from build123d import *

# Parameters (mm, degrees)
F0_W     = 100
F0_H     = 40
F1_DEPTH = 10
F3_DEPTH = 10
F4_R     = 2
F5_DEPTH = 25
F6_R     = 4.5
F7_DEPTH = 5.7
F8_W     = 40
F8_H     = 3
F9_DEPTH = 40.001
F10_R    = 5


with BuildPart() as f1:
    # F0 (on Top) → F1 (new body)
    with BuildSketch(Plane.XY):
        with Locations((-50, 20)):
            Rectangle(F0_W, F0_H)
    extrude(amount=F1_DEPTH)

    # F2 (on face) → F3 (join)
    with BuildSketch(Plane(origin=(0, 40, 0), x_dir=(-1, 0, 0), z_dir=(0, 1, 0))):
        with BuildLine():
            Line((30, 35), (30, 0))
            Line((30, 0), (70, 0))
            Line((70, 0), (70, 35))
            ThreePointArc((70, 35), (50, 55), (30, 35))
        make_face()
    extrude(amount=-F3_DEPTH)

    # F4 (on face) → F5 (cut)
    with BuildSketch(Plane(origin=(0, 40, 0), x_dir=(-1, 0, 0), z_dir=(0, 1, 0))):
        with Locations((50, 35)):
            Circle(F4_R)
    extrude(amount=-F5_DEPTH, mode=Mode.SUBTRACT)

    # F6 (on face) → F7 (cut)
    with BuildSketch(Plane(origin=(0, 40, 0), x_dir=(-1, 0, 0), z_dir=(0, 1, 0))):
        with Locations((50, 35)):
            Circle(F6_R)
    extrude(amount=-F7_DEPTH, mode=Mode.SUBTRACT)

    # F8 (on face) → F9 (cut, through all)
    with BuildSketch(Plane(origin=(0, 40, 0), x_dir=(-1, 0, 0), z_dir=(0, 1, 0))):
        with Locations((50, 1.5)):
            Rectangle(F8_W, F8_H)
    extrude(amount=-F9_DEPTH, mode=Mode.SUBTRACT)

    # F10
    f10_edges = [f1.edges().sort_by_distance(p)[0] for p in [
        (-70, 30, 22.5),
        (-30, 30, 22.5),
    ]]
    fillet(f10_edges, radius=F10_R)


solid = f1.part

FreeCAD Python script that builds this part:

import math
import FreeCAD as App
import Part
import Sketcher
Q = App.Units.Quantity


def edges_at(feature, points):
    """Names of the edges that pass closest to the given points."""
    edges = feature.Shape.Edges
    near = lambda p: min(range(len(edges)), key=lambda i: edges[i].distToShape(Part.Vertex(*p))[0])
    return sorted({f"Edge{near(p) + 1}" for p in points})


def add_polygon(sketch, points):
    """Adds a closed chain of lines whose ends are joined by coincident constraints."""
    first, n = sketch.GeometryCount, len(points)
    for a, b in zip(points, points[1:] + points[:1]):
        sketch.addGeometry(Part.LineSegment(App.Vector(*a, 0), App.Vector(*b, 0)), False)
    for i in range(n):
        sketch.addConstraint(Sketcher.Constraint("Coincident", first + i, 2, first + (i + 1) % n, 1))

doc = App.newDocument("Part")
params = doc.addObject("Spreadsheet::Sheet", "Params")
for row, (alias, value) in enumerate([
    ("sketch1_width", "100 mm"),
    ("sketch1_height", "40 mm"),
    ("pad1_length", "10 mm"),
    ("sketch2_radius", "20 mm"),
    ("sketch2_height", "35 mm"),
    ("pad2_length", "10 mm"),
    ("sketch3_diameter", "4 mm"),
    ("pocket1_length", "25 mm"),
    ("sketch4_diameter", "9 mm"),
    ("pocket2_length", "5.7 mm"),
    ("sketch5_width", "40 mm"),
    ("sketch5_height", "3 mm"),
    ("fillet_radius", "5 mm"),
], start=1):
    params.set(f"A{row}", alias)
    params.set(f"B{row}", "=" + value)
    params.setAlias(f"B{row}", alias)

body = doc.addObject("PartDesign::Body", "Body")

# Sketch on XY plane
sketch1 = body.newObject("Sketcher::SketchObject", "Sketch")
sketch1.AttachmentSupport = (doc.getObject("XY_Plane"), [""])
sketch1.MapMode = "FlatFace"
add_polygon(sketch1, [(-100, 40), (-100, 0), (0, 0), (0, 40)])  # lines 0-3
sketch1.addConstraint([
    Sketcher.Constraint("Vertical", 0),
    Sketcher.Constraint("Horizontal", 1),
    Sketcher.Constraint("Vertical", 2),
    Sketcher.Constraint("Horizontal", 3),
    Sketcher.Constraint("Coincident", 1, 2, -1, 1),
    Sketcher.Constraint("DistanceX", 1, 1, 1, 2, Q("100 mm")),
    Sketcher.Constraint("DistanceY", 0, 2, 0, 1, Q("40 mm")),
])
sketch1.setExpression("Constraints[9]", "Params.sketch1_width")
sketch1.setExpression("Constraints[10]", "Params.sketch1_height")
pad1 = body.newObject("PartDesign::Pad", "Pad")
pad1.Profile = sketch1
pad1.setExpression("Length", "Params.pad1_length")

# Sketch on XZ plane
sketch2 = body.newObject("Sketcher::SketchObject", "Sketch001")
sketch2.AttachmentSupport = (doc.getObject("XZ_Plane"), [""])
sketch2.MapMode = "FlatFace"
sketch2.AttachmentOffset = App.Placement(App.Vector(0, 0, -40), App.Rotation())
sketch2.addGeometry([
    Part.LineSegment(App.Vector(-30, 35, 0), App.Vector(-30, 0, 0)),
    Part.LineSegment(App.Vector(-30, 0, 0), App.Vector(-70, 0, 0)),
    Part.LineSegment(App.Vector(-70, 0, 0), App.Vector(-70, 35, 0)),
    Part.ArcOfCircle(Part.Circle(App.Vector(-50, 35, 0), App.Vector(0, 0, 1), 20), math.radians(0), math.radians(180)),
], False)
sketch2.addConstraint([
    Sketcher.Constraint("Coincident", 0, 2, 1, 1),
    Sketcher.Constraint("Coincident", 1, 2, 2, 1),
    Sketcher.Constraint("Tangent", 2, 2, 3, 2),
    Sketcher.Constraint("Tangent", 3, 1, 0, 1),
    Sketcher.Constraint("Vertical", 0),
    Sketcher.Constraint("Horizontal", 1),
    Sketcher.Constraint("Vertical", 2),
    Sketcher.Constraint("PointOnObject", 0, 2, -1),
    Sketcher.Constraint("Radius", 3, Q("20 mm")),
    Sketcher.Constraint("DistanceY", 0, 2, 0, 1, Q("35 mm")),
    Sketcher.Constraint("DistanceX", 3, 3, -1, 1, Q("50 mm")),
])
sketch2.setExpression("Constraints[8]", "Params.sketch2_radius")
sketch2.setExpression("Constraints[9]", "Params.sketch2_height")
pad2 = body.newObject("PartDesign::Pad", "Pad001")
pad2.Profile = sketch2
pad2.setExpression("Length", "Params.pad2_length")

# Sketch on XZ plane
sketch3 = body.newObject("Sketcher::SketchObject", "Sketch002")
sketch3.AttachmentSupport = (doc.getObject("XZ_Plane"), [""])
sketch3.MapMode = "FlatFace"
sketch3.AttachmentOffset = App.Placement(App.Vector(0, 0, -40), App.Rotation())
sketch3.addGeometry(Part.Circle(App.Vector(-50, 35, 0), App.Vector(0, 0, 1), 2), False)
sketch3.addConstraint([
    Sketcher.Constraint("Diameter", 0, Q("4 mm")),
    Sketcher.Constraint("DistanceX", 0, 3, -1, 1, Q("50 mm")),
    Sketcher.Constraint("DistanceY", -1, 1, 0, 3, Q("35 mm")),
])
sketch3.setExpression("Constraints[0]", "Params.sketch3_diameter")
pocket1 = body.newObject("PartDesign::Pocket", "Pocket")
pocket1.Profile = sketch3
pocket1.setExpression("Length", "Params.pocket1_length")
pocket1.Reversed = True

# Sketch on XZ plane
sketch4 = body.newObject("Sketcher::SketchObject", "Sketch003")
sketch4.AttachmentSupport = (doc.getObject("XZ_Plane"), [""])
sketch4.MapMode = "FlatFace"
sketch4.AttachmentOffset = App.Placement(App.Vector(0, 0, -40), App.Rotation())
sketch4.addGeometry(Part.Circle(App.Vector(-50, 35, 0), App.Vector(0, 0, 1), 4.5), False)
sketch4.addConstraint([
    Sketcher.Constraint("Diameter", 0, Q("9 mm")),
    Sketcher.Constraint("DistanceX", 0, 3, -1, 1, Q("50 mm")),
    Sketcher.Constraint("DistanceY", -1, 1, 0, 3, Q("35 mm")),
])
sketch4.setExpression("Constraints[0]", "Params.sketch4_diameter")
pocket2 = body.newObject("PartDesign::Pocket", "Pocket001")
pocket2.Profile = sketch4
pocket2.setExpression("Length", "Params.pocket2_length")
pocket2.Reversed = True

# Sketch on XZ plane
sketch5 = body.newObject("Sketcher::SketchObject", "Sketch004")
sketch5.AttachmentSupport = (doc.getObject("XZ_Plane"), [""])
sketch5.MapMode = "FlatFace"
sketch5.AttachmentOffset = App.Placement(App.Vector(0, 0, -40), App.Rotation())
add_polygon(sketch5, [(-30, 3), (-30, 0), (-70, 0), (-70, 3)])  # lines 0-3
sketch5.addConstraint([
    Sketcher.Constraint("Vertical", 0),
    Sketcher.Constraint("Horizontal", 1),
    Sketcher.Constraint("Vertical", 2),
    Sketcher.Constraint("Horizontal", 3),
    Sketcher.Constraint("PointOnObject", 0, 2, -1),
    Sketcher.Constraint("DistanceX", 1, 2, 1, 1, Q("40 mm")),
    Sketcher.Constraint("DistanceY", 0, 2, 0, 1, Q("3 mm")),
    Sketcher.Constraint("DistanceX", 0, 2, -1, 1, Q("30 mm")),
])
sketch5.setExpression("Constraints[9]", "Params.sketch5_width")
sketch5.setExpression("Constraints[10]", "Params.sketch5_height")
pocket3 = body.newObject("PartDesign::Pocket", "Pocket002")
pocket3.Profile = sketch5
pocket3.Type = "ThroughAll"
pocket3.Reversed = True
doc.recompute()

fillet = body.newObject("PartDesign::Fillet", "Fillet")
fillet.Base = (pocket3, edges_at(pocket3, [(-70, 30, 22.5), (-30, 30, 22.5)]))
fillet.setExpression("Radius", "Params.fillet_radius")

doc.recompute()
